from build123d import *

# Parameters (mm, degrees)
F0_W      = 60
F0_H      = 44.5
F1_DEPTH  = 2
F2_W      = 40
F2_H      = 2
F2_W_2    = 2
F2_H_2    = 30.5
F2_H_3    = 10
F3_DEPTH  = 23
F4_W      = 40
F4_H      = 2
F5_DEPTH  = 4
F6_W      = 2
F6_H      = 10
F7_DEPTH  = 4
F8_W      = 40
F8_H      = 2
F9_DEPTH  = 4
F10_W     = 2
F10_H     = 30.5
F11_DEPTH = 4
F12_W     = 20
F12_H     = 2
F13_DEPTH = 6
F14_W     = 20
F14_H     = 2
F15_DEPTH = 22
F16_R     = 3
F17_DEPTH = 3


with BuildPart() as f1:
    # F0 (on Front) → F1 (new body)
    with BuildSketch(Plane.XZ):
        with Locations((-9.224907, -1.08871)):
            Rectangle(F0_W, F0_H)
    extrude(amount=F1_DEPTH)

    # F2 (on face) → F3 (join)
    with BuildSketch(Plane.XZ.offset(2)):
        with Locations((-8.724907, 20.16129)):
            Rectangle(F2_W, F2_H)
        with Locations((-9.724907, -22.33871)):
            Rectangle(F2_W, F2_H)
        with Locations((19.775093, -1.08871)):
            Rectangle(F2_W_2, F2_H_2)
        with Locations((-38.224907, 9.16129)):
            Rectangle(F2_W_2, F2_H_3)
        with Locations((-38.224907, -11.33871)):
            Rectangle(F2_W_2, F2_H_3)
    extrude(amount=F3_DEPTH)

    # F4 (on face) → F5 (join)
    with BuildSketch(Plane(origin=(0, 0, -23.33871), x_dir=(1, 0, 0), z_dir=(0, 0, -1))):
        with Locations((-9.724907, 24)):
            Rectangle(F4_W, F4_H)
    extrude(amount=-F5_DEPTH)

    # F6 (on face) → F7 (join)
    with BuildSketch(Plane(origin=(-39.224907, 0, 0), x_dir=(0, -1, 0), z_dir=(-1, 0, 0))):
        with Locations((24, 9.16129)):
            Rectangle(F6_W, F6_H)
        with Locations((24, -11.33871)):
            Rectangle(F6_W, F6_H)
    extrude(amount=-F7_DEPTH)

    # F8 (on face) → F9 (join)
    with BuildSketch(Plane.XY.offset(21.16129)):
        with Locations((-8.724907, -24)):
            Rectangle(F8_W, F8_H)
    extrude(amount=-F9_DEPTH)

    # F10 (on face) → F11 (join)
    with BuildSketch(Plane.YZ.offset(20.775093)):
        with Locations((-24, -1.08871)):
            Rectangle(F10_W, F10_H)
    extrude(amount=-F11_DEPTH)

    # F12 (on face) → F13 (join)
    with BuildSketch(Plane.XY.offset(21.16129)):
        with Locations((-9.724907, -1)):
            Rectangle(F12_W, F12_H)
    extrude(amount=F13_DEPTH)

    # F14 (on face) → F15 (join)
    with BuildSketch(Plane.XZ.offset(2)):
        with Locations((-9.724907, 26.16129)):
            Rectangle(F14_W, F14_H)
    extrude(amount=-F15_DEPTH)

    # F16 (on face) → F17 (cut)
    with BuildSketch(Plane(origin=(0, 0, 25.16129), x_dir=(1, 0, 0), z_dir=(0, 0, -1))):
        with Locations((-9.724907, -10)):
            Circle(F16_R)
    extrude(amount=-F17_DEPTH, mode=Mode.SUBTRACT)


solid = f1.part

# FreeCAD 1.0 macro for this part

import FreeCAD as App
import Part
import Sketcher
Q = App.Units.Quantity

doc = App.newDocument("Part")
body = doc.addObject("PartDesign::Body", "Body")

# Sketch on XZ plane
sketch1 = body.newObject("Sketcher::SketchObject", "Sketch")
sketch1.AttachmentSupport = (doc.getObject("XZ_Plane"), [""])
sketch1.MapMode = "FlatFace"
sketch1.addGeometry(Part.LineSegment(App.Vector(-39, 21, 0), App.Vector(-39, -23, 0)), False)
sketch1.addGeometry(Part.LineSegment(App.Vector(-39, -23, 0), App.Vector(21, -23, 0)), False)
sketch1.addGeometry(Part.LineSegment(App.Vector(21, -23, 0), App.Vector(21, 21, 0)), False)
sketch1.addGeometry(Part.LineSegment(App.Vector(21, 21, 0), App.Vector(-39, 21, 0)), False)
sketch1.addConstraint(Sketcher.Constraint("Coincident", 0, 2, 1, 1))
sketch1.addConstraint(Sketcher.Constraint("Coincident", 1, 2, 2, 1))
sketch1.addConstraint(Sketcher.Constraint("Coincident", 2, 2, 3, 1))
sketch1.addConstraint(Sketcher.Constraint("Coincident", 3, 2, 0, 1))
sketch1.addConstraint(Sketcher.Constraint("Vertical", 0))
sketch1.addConstraint(Sketcher.Constraint("Horizontal", 1))
sketch1.addConstraint(Sketcher.Constraint("Vertical", 2))
sketch1.addConstraint(Sketcher.Constraint("Horizontal", 3))
sketch1.addConstraint(Sketcher.Constraint("DistanceX", 1, 1, 1, 2, Q("60 mm")))
sketch1.addConstraint(Sketcher.Constraint("DistanceY", 0, 2, 0, 1, Q("44.5 mm")))
sketch1.addConstraint(Sketcher.Constraint("DistanceY", 0, 2, -1, 1, Q("23.33871 mm")))
sketch1.addConstraint(Sketcher.Constraint("DistanceX", 0, 2, -1, 1, Q("39.224907 mm")))
pad1 = body.newObject("PartDesign::Pad", "Pad")
pad1.Profile = sketch1
pad1.Length = 2

# Sketch on XZ plane
sketch2 = body.newObject("Sketcher::SketchObject", "Sketch001")
sketch2.AttachmentSupport = (doc.getObject("XZ_Plane"), [""])
sketch2.MapMode = "FlatFace"
sketch2.AttachmentOffset = App.Placement(App.Vector(0, 0, 2), App.Rotation())
sketch2.addGeometry(Part.LineSegment(App.Vector(-28.7, 21.2, 0), App.Vector(-28.7, 19.2, 0)), False)
sketch2.addGeometry(Part.LineSegment(App.Vector(-28.7, 19.2, 0), App.Vector(11.3, 19.2, 0)), False)
sketch2.addGeometry(Part.LineSegment(App.Vector(11.3, 19.2, 0), App.Vector(11.3, 21.2, 0)), False)
sketch2.addGeometry(Part.LineSegment(App.Vector(11.3, 21.2, 0), App.Vector(-28.7, 21.2, 0)), False)
sketch2.addGeometry(Part.LineSegment(App.Vector(-29.7, -21.3, 0), App.Vector(-29.7, -23.3, 0)), False)
sketch2.addGeometry(Part.LineSegment(App.Vector(-29.7, -23.3, 0), App.Vector(10.3, -23.3, 0)), False)
sketch2.addGeometry(Part.LineSegment(App.Vector(10.3, -23.3, 0), App.Vector(10.3, -21.3, 0)), False)
sketch2.addGeometry(Part.LineSegment(App.Vector(10.3, -21.3, 0), App.Vector(-29.7, -21.3, 0)), False)
sketch2.addGeometry(Part.LineSegment(App.Vector(18.8, 14.2, 0), App.Vector(18.8, -16.3, 0)), False)
sketch2.addGeometry(Part.LineSegment(App.Vector(18.8, -16.3, 0), App.Vector(20.8, -16.3, 0)), False)
sketch2.addGeometry(Part.LineSegment(App.Vector(20.8, -16.3, 0), App.Vector(20.8, 14.2, 0)), False)
sketch2.addGeometry(Part.LineSegment(App.Vector(20.8, 14.2, 0), App.Vector(18.8, 14.2, 0)), False)
sketch2.addGeometry(Part.LineSegment(App.Vector(-39.2, 14.2, 0), App.Vector(-39.2, 4.2, 0)), False)
sketch2.addGeometry(Part.LineSegment(App.Vector(-39.2, 4.2, 0), App.Vector(-37.2, 4.2, 0)), False)
sketch2.addGeometry(Part.LineSegment(App.Vector(-37.2, 4.2, 0), App.Vector(-37.2, 14.2, 0)), False)
sketch2.addGeometry(Part.LineSegment(App.Vector(-37.2, 14.2, 0), App.Vector(-39.2, 14.2, 0)), False)
sketch2.addGeometry(Part.LineSegment(App.Vector(-39.2, -6.3, 0), App.Vector(-39.2, -16.3, 0)), False)
sketch2.addGeometry(Part.LineSegment(App.Vector(-39.2, -16.3, 0), App.Vector(-37.2, -16.3, 0)), False)
sketch2.addGeometry(Part.LineSegment(App.Vector(-37.2, -16.3, 0), App.Vector(-37.2, -6.3, 0)), False)
sketch2.addGeometry(Part.LineSegment(App.Vector(-37.2, -6.3, 0), App.Vector(-39.2, -6.3, 0)), False)
sketch2.addConstraint(Sketcher.Constraint("Coincident", 0, 2, 1, 1))
sketch2.addConstraint(Sketcher.Constraint("Coincident", 1, 2, 2, 1))
sketch2.addConstraint(Sketcher.Constraint("Coincident", 2, 2, 3, 1))
sketch2.addConstraint(Sketcher.Constraint("Coincident", 3, 2, 0, 1))
sketch2.addConstraint(Sketcher.Constraint("Coincident", 4, 2, 5, 1))
sketch2.addConstraint(Sketcher.Constraint("Coincident", 5, 2, 6, 1))
sketch2.addConstraint(Sketcher.Constraint("Coincident", 6, 2, 7, 1))
sketch2.addConstraint(Sketcher.Constraint("Coincident", 7, 2, 4, 1))
sketch2.addConstraint(Sketcher.Constraint("Coincident", 8, 2, 9, 1))
sketch2.addConstraint(Sketcher.Constraint("Coincident", 9, 2, 10, 1))
sketch2.addConstraint(Sketcher.Constraint("Coincident", 10, 2, 11, 1))
sketch2.addConstraint(Sketcher.Constraint("Coincident", 11, 2, 8, 1))
sketch2.addConstraint(Sketcher.Constraint("Coincident", 12, 2, 13, 1))
sketch2.addConstraint(Sketcher.Constraint("Coincident", 13, 2, 14, 1))
sketch2.addConstraint(Sketcher.Constraint("Coincident", 14, 2, 15, 1))
sketch2.addConstraint(Sketcher.Constraint("Coincident", 15, 2, 12, 1))
sketch2.addConstraint(Sketcher.Constraint("Coincident", 16, 2, 17, 1))
sketch2.addConstraint(Sketcher.Constraint("Coincident", 17, 2, 18, 1))
sketch2.addConstraint(Sketcher.Constraint("Coincident", 18, 2, 19, 1))
sketch2.addConstraint(Sketcher.Constraint("Coincident", 19, 2, 16, 1))
sketch2.addConstraint(Sketcher.Constraint("Vertical", 0))
sketch2.addConstraint(Sketcher.Constraint("Horizontal", 1))
sketch2.addConstraint(Sketcher.Constraint("Vertical", 2))
sketch2.addConstraint(Sketcher.Constraint("Horizontal", 3))
sketch2.addConstraint(Sketcher.Constraint("Vertical", 4))
sketch2.addConstraint(Sketcher.Constraint("Horizontal", 5))
sketch2.addConstraint(Sketcher.Constraint("Vertical", 6))
sketch2.addConstraint(Sketcher.Constraint("Horizontal", 7))
sketch2.addConstraint(Sketcher.Constraint("Vertical", 8))
sketch2.addConstraint(Sketcher.Constraint("Horizontal", 9))
sketch2.addConstraint(Sketcher.Constraint("Vertical", 10))
sketch2.addConstraint(Sketcher.Constraint("Horizontal", 11))
sketch2.addConstraint(Sketcher.Constraint("Vertical", 12))
sketch2.addConstraint(Sketcher.Constraint("Horizontal", 13))
sketch2.addConstraint(Sketcher.Constraint("Vertical", 14))
sketch2.addConstraint(Sketcher.Constraint("Horizontal", 15))
sketch2.addConstraint(Sketcher.Constraint("Vertical", 16))
sketch2.addConstraint(Sketcher.Constraint("Horizontal", 17))
sketch2.addConstraint(Sketcher.Constraint("Vertical", 18))
sketch2.addConstraint(Sketcher.Constraint("Horizontal", 19))
sketch2.addConstraint(Sketcher.Constraint("Horizontal", 11, 2, 14, 2))
sketch2.addConstraint(Sketcher.Constraint("Horizontal", 9, 2, 16, 2))
sketch2.addConstraint(Sketcher.Constraint("Vertical", 15, 2, 16, 2))
sketch2.addConstraint(Sketcher.Constraint("Vertical", 14, 2, 17, 2))
sketch2.addConstraint(Sketcher.Constraint("Equal", 3, 5))
sketch2.addConstraint(Sketcher.Constraint("Equal", 11, 13))
sketch2.addConstraint(Sketcher.Constraint("Equal", 19, 0))
sketch2.addConstraint(Sketcher.Constraint("Equal", 2, 4))
sketch2.addConstraint(Sketcher.Constraint("Equal", 14, 16))
sketch2.addConstraint(Sketcher.Constraint("DistanceX", 1, 1, 1, 2, Q("40 mm")))
sketch2.addConstraint(Sketcher.Constraint("DistanceX", 9, 1, 9, 2, Q("2 mm")))
sketch2.addConstraint(Sketcher.Constraint("DistanceY", 12, 2, 12, 1, Q("10 mm")))
sketch2.addConstraint(Sketcher.Constraint("DistanceY", 8, 2, 8, 1, Q("30.5 mm")))
sketch2.addConstraint(Sketcher.Constraint("DistanceX", 4, 2, 0, 2, Q("1 mm")))
sketch2.addConstraint(Sketcher.Constraint("DistanceY", 6, 2, 8, 2, Q("5 mm")))
sketch2.addConstraint(Sketcher.Constraint("DistanceY", 10, 2, 1, 2, Q("5 mm")))
sketch2.addConstraint(Sketcher.Constraint("DistanceX", 6, 2, 8, 2, Q("8.5 mm")))
sketch2.addConstraint(Sketcher.Constraint("DistanceX", 12, 2, 0, 2, Q("10.5 mm")))
sketch2.addConstraint(Sketcher.Constraint("DistanceY", -1, 1, 0, 2, Q("19.16129 mm")))
sketch2.addConstraint(Sketcher.Constraint("DistanceX", 0, 2, -1, 1, Q("28.724907 mm")))
pad2 = body.newObject("PartDesign::Pad", "Pad001")
pad2.Profile = sketch2
pad2.Length = 23

# Sketch on XY plane
sketch3 = body.newObject("Sketcher::SketchObject", "Sketch002")
sketch3.AttachmentSupport = (doc.getObject("XY_Plane"), [""])
sketch3.MapMode = "FlatFace"
sketch3.AttachmentOffset = App.Placement(App.Vector(0, 0, -23.33871), App.Rotation())
sketch3.addGeometry(Part.LineSegment(App.Vector(-29.7, -25, 0), App.Vector(-29.7, -23, 0)), False)
sketch3.addGeometry(Part.LineSegment(App.Vector(-29.7, -23, 0), App.Vector(10.3, -23, 0)), False)
sketch3.addGeometry(Part.LineSegment(App.Vector(10.3, -23, 0), App.Vector(10.3, -25, 0)), False)
sketch3.addGeometry(Part.LineSegment(App.Vector(10.3, -25, 0), App.Vector(-29.7, -25, 0)), False)
sketch3.addConstraint(Sketcher.Constraint("Coincident", 0, 2, 1, 1))
sketch3.addConstraint(Sketcher.Constraint("Coincident", 1, 2, 2, 1))
sketch3.addConstraint(Sketcher.Constraint("Coincident", 2, 2, 3, 1))
sketch3.addConstraint(Sketcher.Constraint("Coincident", 3, 2, 0, 1))
sketch3.addConstraint(Sketcher.Constraint("Vertical", 0))
sketch3.addConstraint(Sketcher.Constraint("Horizontal", 1))
sketch3.addConstraint(Sketcher.Constraint("Vertical", 2))
sketch3.addConstraint(Sketcher.Constraint("Horizontal", 3))
sketch3.addConstraint(Sketcher.Constraint("DistanceX", 1, 1, 1, 2, Q("40 mm")))
sketch3.addConstraint(Sketcher.Constraint("DistanceY", 0, 1, 0, 2, Q("2 mm")))
sketch3.addConstraint(Sketcher.Constraint("DistanceY", 0, 2, -1, 1, Q("23 mm")))
sketch3.addConstraint(Sketcher.Constraint("DistanceX", 0, 2, -1, 1, Q("29.724907 mm")))
pad3 = body.newObject("PartDesign::Pad", "Pad002")
pad3.Profile = sketch3
pad3.Length = 4

# Sketch on YZ plane
sketch4 = body.newObject("Sketcher::SketchObject", "Sketch003")
sketch4.AttachmentSupport = (doc.getObject("YZ_Plane"), [""])
sketch4.MapMode = "FlatFace"
sketch4.AttachmentOffset = App.Placement(App.Vector(0, 0, -39.224907), App.Rotation())
sketch4.addGeometry(Part.LineSegment(App.Vector(-23, 14.2, 0), App.Vector(-23, 4.2, 0)), False)
sketch4.addGeometry(Part.LineSegment(App.Vector(-23, 4.2, 0), App.Vector(-25, 4.2, 0)), False)
sketch4.addGeometry(Part.LineSegment(App.Vector(-25, 4.2, 0), App.Vector(-25, 14.2, 0)), False)
sketch4.addGeometry(Part.LineSegment(App.Vector(-25, 14.2, 0), App.Vector(-23, 14.2, 0)), False)
sketch4.addGeometry(Part.LineSegment(App.Vector(-23, -6.3, 0), App.Vector(-23, -16.3, 0)), False)
sketch4.addGeometry(Part.LineSegment(App.Vector(-23, -16.3, 0), App.Vector(-25, -16.3, 0)), False)
sketch4.addGeometry(Part.LineSegment(App.Vector(-25, -16.3, 0), App.Vector(-25, -6.3, 0)), False)
sketch4.addGeometry(Part.LineSegment(App.Vector(-25, -6.3, 0), App.Vector(-23, -6.3, 0)), False)
sketch4.addConstraint(Sketcher.Constraint("Coincident", 0, 2, 1, 1))
sketch4.addConstraint(Sketcher.Constraint("Coincident", 1, 2, 2, 1))
sketch4.addConstraint(Sketcher.Constraint("Coincident", 2, 2, 3, 1))
sketch4.addConstraint(Sketcher.Constraint("Coincident", 3, 2, 0, 1))
sketch4.addConstraint(Sketcher.Constraint("Coincident", 4, 2, 5, 1))
sketch4.addConstraint(Sketcher.Constraint("Coincident", 5, 2, 6, 1))
sketch4.addConstraint(Sketcher.Constraint("Coincident", 6, 2, 7, 1))
sketch4.addConstraint(Sketcher.Constraint("Coincident", 7, 2, 4, 1))
sketch4.addConstraint(Sketcher.Constraint("Vertical", 0))
sketch4.addConstraint(Sketcher.Constraint("Horizontal", 1))
sketch4.addConstraint(Sketcher.Constraint("Vertical", 2))
sketch4.addConstraint(Sketcher.Constraint("Horizontal", 3))
sketch4.addConstraint(Sketcher.Constraint("Vertical", 4))
sketch4.addConstraint(Sketcher.Constraint("Horizontal", 5))
sketch4.addConstraint(Sketcher.Constraint("Vertical", 6))
sketch4.addConstraint(Sketcher.Constraint("Horizontal", 7))
sketch4.addConstraint(Sketcher.Constraint("Vertical", 3, 2, 4, 2))
sketch4.addConstraint(Sketcher.Constraint("Vertical", 2, 2, 5, 2))
sketch4.addConstraint(Sketcher.Constraint("Equal", 2, 4))
sketch4.addConstraint(Sketcher.Constraint("DistanceX", 1, 2, 1, 1, Q("2 mm")))
sketch4.addConstraint(Sketcher.Constraint("DistanceY", 0, 2, 0, 1, Q("10 mm")))
sketch4.addConstraint(Sketcher.Constraint("DistanceX", 0, 2, -1, 1, Q("23 mm")))
sketch4.addConstraint(Sketcher.Constraint("DistanceY", 4, 2, 0, 2, Q("20.5 mm")))
sketch4.addConstraint(Sketcher.Constraint("DistanceY", -1, 1, 0, 2, Q("4.16129 mm")))
pad4 = body.newObject("PartDesign::Pad", "Pad003")
pad4.Profile = sketch4
pad4.Length = 4

# Sketch on XY plane
sketch5 = body.newObject("Sketcher::SketchObject", "Sketch004")
sketch5.AttachmentSupport = (doc.getObject("XY_Plane"), [""])
sketch5.MapMode = "FlatFace"
sketch5.AttachmentOffset = App.Placement(App.Vector(0, 0, 21.16129), App.Rotation())
sketch5.addGeometry(Part.LineSegment(App.Vector(-28.7, -23, 0), App.Vector(-28.7, -25, 0)), False)
sketch5.addGeometry(Part.LineSegment(App.Vector(-28.7, -25, 0), App.Vector(11.3, -25, 0)), False)
sketch5.addGeometry(Part.LineSegment(App.Vector(11.3, -25, 0), App.Vector(11.3, -23, 0)), False)
sketch5.addGeometry(Part.LineSegment(App.Vector(11.3, -23, 0), App.Vector(-28.7, -23, 0)), False)
sketch5.addConstraint(Sketcher.Constraint("Coincident", 0, 2, 1, 1))
sketch5.addConstraint(Sketcher.Constraint("Coincident", 1, 2, 2, 1))
sketch5.addConstraint(Sketcher.Constraint("Coincident", 2, 2, 3, 1))
sketch5.addConstraint(Sketcher.Constraint("Coincident", 3, 2, 0, 1))
sketch5.addConstraint(Sketcher.Constraint("Vertical", 0))
sketch5.addConstraint(Sketcher.Constraint("Horizontal", 1))
sketch5.addConstraint(Sketcher.Constraint("Vertical", 2))
sketch5.addConstraint(Sketcher.Constraint("Horizontal", 3))
sketch5.addConstraint(Sketcher.Constraint("DistanceX", 1, 1, 1, 2, Q("40 mm")))
sketch5.addConstraint(Sketcher.Constraint("DistanceY", 0, 2, 0, 1, Q("2 mm")))
sketch5.addConstraint(Sketcher.Constraint("DistanceY", 0, 2, -1, 1, Q("25 mm")))
sketch5.addConstraint(Sketcher.Constraint("DistanceX", 0, 2, -1, 1, Q("28.724907 mm")))
pad5 = body.newObject("PartDesign::Pad", "Pad004")
pad5.Profile = sketch5
pad5.Length = 4
pad5.Reversed = True

# Sketch on YZ plane
sketch6 = body.newObject("Sketcher::SketchObject", "Sketch005")
sketch6.AttachmentSupport = (doc.getObject("YZ_Plane"), [""])
sketch6.MapMode = "FlatFace"
sketch6.AttachmentOffset = App.Placement(App.Vector(0, 0, 20.775093), App.Rotation())
sketch6.addGeometry(Part.LineSegment(App.Vector(-25, 14.2, 0), App.Vector(-25, -16.3, 0)), False)
sketch6.addGeometry(Part.LineSegment(App.Vector(-25, -16.3, 0), App.Vector(-23, -16.3, 0)), False)
sketch6.addGeometry(Part.LineSegment(App.Vector(-23, -16.3, 0), App.Vector(-23, 14.2, 0)), False)
sketch6.addGeometry(Part.LineSegment(App.Vector(-23, 14.2, 0), App.Vector(-25, 14.2, 0)), False)
sketch6.addConstraint(Sketcher.Constraint("Coincident", 0, 2, 1, 1))
sketch6.addConstraint(Sketcher.Constraint("Coincident", 1, 2, 2, 1))
sketch6.addConstraint(Sketcher.Constraint("Coincident", 2, 2, 3, 1))
sketch6.addConstraint(Sketcher.Constraint("Coincident", 3, 2, 0, 1))
sketch6.addConstraint(Sketcher.Constraint("Vertical", 0))
sketch6.addConstraint(Sketcher.Constraint("Horizontal", 1))
sketch6.addConstraint(Sketcher.Constraint("Vertical", 2))
sketch6.addConstraint(Sketcher.Constraint("Horizontal", 3))
sketch6.addConstraint(Sketcher.Constraint("DistanceX", 1, 1, 1, 2, Q("2 mm")))
sketch6.addConstraint(Sketcher.Constraint("DistanceY", 0, 2, 0, 1, Q("30.5 mm")))
sketch6.addConstraint(Sketcher.Constraint("DistanceX", 0, 2, -1, 1, Q("25 mm")))
sketch6.addConstraint(Sketcher.Constraint("DistanceY", 0, 2, -1, 1, Q("16.33871 mm")))
pad6 = body.newObject("PartDesign::Pad", "Pad005")
pad6.Profile = sketch6
pad6.Length = 4
pad6.Reversed = True

# Sketch on XY plane
sketch7 = body.newObject("Sketcher::SketchObject", "Sketch006")
sketch7.AttachmentSupport = (doc.getObject("XY_Plane"), [""])
sketch7.MapMode = "FlatFace"
sketch7.AttachmentOffset = App.Placement(App.Vector(0, 0, 21.16129), App.Rotation())
sketch7.addGeometry(Part.LineSegment(App.Vector(-19.7, 0, 0), App.Vector(-19.7, -2, 0)), False)
sketch7.addGeometry(Part.LineSegment(App.Vector(-19.7, -2, 0), App.Vector(0.3, -2, 0)), False)
sketch7.addGeometry(Part.LineSegment(App.Vector(0.3, -2, 0), App.Vector(0.3, 0, 0)), False)
sketch7.addGeometry(Part.LineSegment(App.Vector(0.3, 0, 0), App.Vector(-19.7, 0, 0)), False)
sketch7.addConstraint(Sketcher.Constraint("Coincident", 0, 2, 1, 1))
sketch7.addConstraint(Sketcher.Constraint("Coincident", 1, 2, 2, 1))
sketch7.addConstraint(Sketcher.Constraint("Coincident", 2, 2, 3, 1))
sketch7.addConstraint(Sketcher.Constraint("Coincident", 3, 2, 0, 1))
sketch7.addConstraint(Sketcher.Constraint("Vertical", 0))
sketch7.addConstraint(Sketcher.Constraint("Horizontal", 1))
sketch7.addConstraint(Sketcher.Constraint("Vertical", 2))
sketch7.addConstraint(Sketcher.Constraint("Horizontal", 3))
sketch7.addConstraint(Sketcher.Constraint("PointOnObject", 2, 2, -1))
sketch7.addConstraint(Sketcher.Constraint("DistanceX", 1, 1, 1, 2, Q("20 mm")))
sketch7.addConstraint(Sketcher.Constraint("DistanceY", 0, 2, 0, 1, Q("2 mm")))
sketch7.addConstraint(Sketcher.Constraint("DistanceX", 0, 2, -1, 1, Q("19.724907 mm")))
pad7 = body.newObject("PartDesign::Pad", "Pad006")
pad7.Profile = sketch7
pad7.Length = 6

# Sketch on XZ plane
sketch8 = body.newObject("Sketcher::SketchObject", "Sketch007")
sketch8.AttachmentSupport = (doc.getObject("XZ_Plane"), [""])
sketch8.MapMode = "FlatFace"
sketch8.AttachmentOffset = App.Placement(App.Vector(0, 0, 2), App.Rotation())
sketch8.addGeometry(Part.LineSegment(App.Vector(-19.7, 27.2, 0), App.Vector(-19.7, 25.2, 0)), False)
sketch8.addGeometry(Part.LineSegment(App.Vector(-19.7, 25.2, 0), App.Vector(0.3, 25.2, 0)), False)
sketch8.addGeometry(Part.LineSegment(App.Vector(0.3, 25.2, 0), App.Vector(0.3, 27.2, 0)), False)
sketch8.addGeometry(Part.LineSegment(App.Vector(0.3, 27.2, 0), App.Vector(-19.7, 27.2, 0)), False)
sketch8.addConstraint(Sketcher.Constraint("Coincident", 0, 2, 1, 1))
sketch8.addConstraint(Sketcher.Constraint("Coincident", 1, 2, 2, 1))
sketch8.addConstraint(Sketcher.Constraint("Coincident", 2, 2, 3, 1))
sketch8.addConstraint(Sketcher.Constraint("Coincident", 3, 2, 0, 1))
sketch8.addConstraint(Sketcher.Constraint("Vertical", 0))
sketch8.addConstraint(Sketcher.Constraint("Horizontal", 1))
sketch8.addConstraint(Sketcher.Constraint("Vertical", 2))
sketch8.addConstraint(Sketcher.Constraint("Horizontal", 3))
sketch8.addConstraint(Sketcher.Constraint("DistanceX", 1, 1, 1, 2, Q("20 mm")))
sketch8.addConstraint(Sketcher.Constraint("DistanceY", 0, 2, 0, 1, Q("2 mm")))
sketch8.addConstraint(Sketcher.Constraint("DistanceY", -1, 1, 0, 2, Q("25.16129 mm")))
sketch8.addConstraint(Sketcher.Constraint("DistanceX", 0, 2, -1, 1, Q("19.724907 mm")))
pad8 = body.newObject("PartDesign::Pad", "Pad007")
pad8.Profile = sketch8
pad8.Length = 22
pad8.Reversed = True

# Sketch on XY plane
sketch9 = body.newObject("Sketcher::SketchObject", "Sketch008")
sketch9.AttachmentSupport = (doc.getObject("XY_Plane"), [""])
sketch9.MapMode = "FlatFace"
sketch9.AttachmentOffset = App.Placement(App.Vector(0, 0, 25.16129), App.Rotation())
sketch9.addGeometry(Part.Circle(App.Vector(-9.7, 10, 0), App.Vector(0, 0, 1), 3), False)
sketch9.addConstraint(Sketcher.Constraint("Diameter", 0, Q("6 mm")))
sketch9.addConstraint(Sketcher.Constraint("DistanceY", -1, 1, 0, 3, Q("10 mm")))
sketch9.addConstraint(Sketcher.Constraint("DistanceX", 0, 3, -1, 1, Q("9.724907 mm")))
pocket1 = body.newObject("PartDesign::Pocket", "Pocket")
pocket1.Profile = sketch9
pocket1.Length = 3
pocket1.Reversed = True

doc.recompute()
